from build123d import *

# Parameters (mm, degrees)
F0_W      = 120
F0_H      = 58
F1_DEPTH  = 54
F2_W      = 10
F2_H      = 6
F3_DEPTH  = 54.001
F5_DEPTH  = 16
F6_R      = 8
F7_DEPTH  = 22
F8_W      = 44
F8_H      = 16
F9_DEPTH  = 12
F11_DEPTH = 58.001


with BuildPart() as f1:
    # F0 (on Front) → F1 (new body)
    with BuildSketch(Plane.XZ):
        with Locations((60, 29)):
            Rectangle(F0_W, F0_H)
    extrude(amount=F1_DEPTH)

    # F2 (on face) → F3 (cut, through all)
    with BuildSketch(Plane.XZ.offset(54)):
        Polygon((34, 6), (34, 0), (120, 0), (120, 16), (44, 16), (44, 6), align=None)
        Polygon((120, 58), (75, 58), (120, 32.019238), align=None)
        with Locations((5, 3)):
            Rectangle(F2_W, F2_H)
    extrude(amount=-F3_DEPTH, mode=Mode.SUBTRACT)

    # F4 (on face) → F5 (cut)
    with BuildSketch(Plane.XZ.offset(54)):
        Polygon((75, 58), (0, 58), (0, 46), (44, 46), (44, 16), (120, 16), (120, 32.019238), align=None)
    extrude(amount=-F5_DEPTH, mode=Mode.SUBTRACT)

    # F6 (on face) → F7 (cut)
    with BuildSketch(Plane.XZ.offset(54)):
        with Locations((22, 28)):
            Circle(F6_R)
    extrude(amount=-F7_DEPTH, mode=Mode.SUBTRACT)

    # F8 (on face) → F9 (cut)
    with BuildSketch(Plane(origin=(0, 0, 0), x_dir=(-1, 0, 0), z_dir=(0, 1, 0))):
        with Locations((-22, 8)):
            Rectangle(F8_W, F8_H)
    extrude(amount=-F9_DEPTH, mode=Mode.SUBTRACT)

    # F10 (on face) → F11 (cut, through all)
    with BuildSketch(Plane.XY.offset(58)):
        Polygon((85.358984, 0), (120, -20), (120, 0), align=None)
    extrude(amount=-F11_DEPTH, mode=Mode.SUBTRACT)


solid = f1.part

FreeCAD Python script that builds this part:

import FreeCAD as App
import Part
import Sketcher
from FreeCAD import Vector
Q = App.Units.Quantity


def add_polygon(sketch, points):
    """Adds a closed chain of lines whose ends are joined by coincident constraints."""
    first, n = sketch.GeometryCount, len(points)
    for a, b in zip(points, points[1:] + points[:1]):
        sketch.addGeometry(Part.LineSegment(App.Vector(*a, 0), App.Vector(*b, 0)), False)
    for i in range(n):
        sketch.addConstraint(Sketcher.Constraint("Coincident", first + i, 2, first + (i + 1) % n, 1))

doc = App.newDocument("Part")
body = doc.addObject("PartDesign::Body", "Body")

# Sketch on XZ plane
sketch1 = doc.addObject("Sketcher::SketchObject", "Sketch")
body.addObject(sketch1)
sketch1.AttachmentSupport = (doc.XZ_Plane, [""])
sketch1.MapMode = "FlatFace"
add_polygon(sketch1, [(0, 58), (0, 0), (120, 0), (120, 58)])  # lines 0-3
sketch1.addConstraint([
    Sketcher.Constraint("Vertical", 0),
    Sketcher.Constraint("Horizontal", 1),
    Sketcher.Constraint("Vertical", 2),
    Sketcher.Constraint("Horizontal", 3),
    Sketcher.Constraint("Coincident", 0, 2, -1, 1),
    Sketcher.Constraint("DistanceX", 1, 1, 1, 2, 120.0),
    Sketcher.Constraint("DistanceY", 0, 2, 0, 1, 58.0),
])
pad1 = doc.addObject("PartDesign::Pad", "Pad")
body.addObject(pad1)
pad1.Profile = sketch1
pad1.Length = 54

# Sketch on XZ plane
sketch2 = doc.addObject("Sketcher::SketchObject", "Sketch001")
body.addObject(sketch2)
sketch2.AttachmentSupport = (doc.XZ_Plane, [""])
sketch2.MapMode = "FlatFace"
sketch2.AttachmentOffset = App.Placement(Vector(0, 0, 54), App.Rotation())
add_polygon(sketch2, [(34, 6), (34, 0), (120, 0), (120, 16), (44, 16), (44, 6)])  # lines 0-5
add_polygon(sketch2, [(120, 58), (75, 58), (120, 32)])  # lines 6-8
add_polygon(sketch2, [(0, 6), (0, 0), (10, 0), (10, 6)])  # lines 9-12
sketch2.addConstraint([
    Sketcher.Constraint("Vertical", 0),
    Sketcher.Constraint("Horizontal", 1),
    Sketcher.Constraint("Vertical", 2),
    Sketcher.Constraint("Horizontal", 3),
    Sketcher.Constraint("Vertical", 4),
    Sketcher.Constraint("Horizontal", 5),
    Sketcher.Constraint("Horizontal", 6),
    Sketcher.Constraint("Vertical", 8),
    Sketcher.Constraint("Vertical", 9),
    Sketcher.Constraint("Horizontal", 10),
    Sketcher.Constraint("Vertical", 11),
    Sketcher.Constraint("Horizontal", 12),
    Sketcher.Constraint("Coincident", 9, 2, -1, 1),
    Sketcher.Constraint("PointOnObject", 0, 2, -1),
    Sketcher.Constraint("Horizontal", 5, 2, 11, 2),
    Sketcher.Constraint("Vertical", 2, 2, 7, 2),
    Sketcher.Constraint("Equal", 5, 10),
    Sketcher.Constraint("Equal", 12, 4),
    Sketcher.Constraint("DistanceX", 1, 1, 1, 2, 86.0),
    Sketcher.Constraint("DistanceX", 3, 2, 3, 1, 76.0),
    Sketcher.Constraint("DistanceX", 6, 2, 6, 1, 45.0),
    Sketcher.Constraint("DistanceY", 0, 2, 0, 1, 6.0),
    Sketcher.Constraint("Angle", 7, Q("-30 deg")),
    Sketcher.Constraint("DistanceX", -1, 1, 0, 2, 34.0),
    Sketcher.Constraint("DistanceY", -1, 1, 6, 2, 58.0),
])
pocket1 = doc.addObject("PartDesign::Pocket", "Pocket")
body.addObject(pocket1)
pocket1.Profile = sketch2
pocket1.Type = "ThroughAll"

# Sketch on XZ plane
sketch3 = doc.addObject("Sketcher::SketchObject", "Sketch002")
body.addObject(sketch3)
sketch3.AttachmentSupport = (doc.XZ_Plane, [""])
sketch3.MapMode = "FlatFace"
sketch3.AttachmentOffset = App.Placement(Vector(0, 0, 54), App.Rotation())
add_polygon(sketch3, [(75, 58), (0, 58), (0, 46), (44, 46), (44, 16), (120, 16), (120, 32)])  # lines 0-6
sketch3.addConstraint([
    Sketcher.Constraint("Horizontal", 0),
    Sketcher.Constraint("Vertical", 1),
    Sketcher.Constraint("Horizontal", 2),
    Sketcher.Constraint("Vertical", 3),
    Sketcher.Constraint("Horizontal", 4),
    Sketcher.Constraint("Vertical", 5),
    Sketcher.Constraint("PointOnObject", 0, 2, -2),
    Sketcher.Constraint("DistanceX", 0, 2, 0, 1, 75.0),
    Sketcher.Constraint("DistanceX", 2, 1, 2, 2, 44.0),
    Sketcher.Constraint("DistanceX", 4, 1, 4, 2, 76.0),
    Sketcher.Constraint("DistanceY", 1, 2, 1, 1, 12.0),
    Sketcher.Constraint("DistanceY", 3, 2, 3, 1, 30.0),
    Sketcher.Constraint("Angle", 6, Q("150 deg")),
    Sketcher.Constraint("DistanceY", -1, 1, 0, 2, 58.0),
])
pocket2 = doc.addObject("PartDesign::Pocket", "Pocket001")
body.addObject(pocket2)
pocket2.Profile = sketch3
pocket2.Length = 16

# Sketch on XZ plane
sketch4 = doc.addObject("Sketcher::SketchObject", "Sketch003")
body.addObject(sketch4)
sketch4.AttachmentSupport = (doc.XZ_Plane, [""])
sketch4.MapMode = "FlatFace"
sketch4.AttachmentOffset = App.Placement(Vector(0, 0, 54), App.Rotation())
sketch4.addGeometry(Part.Circle(Vector(22, 28, 0), Vector(0, 0, 1), 8), False)
sketch4.addConstraint([
    Sketcher.Constraint("Diameter", 0, 16.0),
    Sketcher.Constraint("DistanceX", -1, 1, 0, 3, 22.0),
    Sketcher.Constraint("DistanceY", -1, 1, 0, 3, 28.0),
])
pocket3 = doc.addObject("PartDesign::Pocket", "Pocket002")
body.addObject(pocket3)
pocket3.Profile = sketch4
pocket3.Length = 22

# Sketch on XZ plane
sketch5 = doc.addObject("Sketcher::SketchObject", "Sketch004")
body.addObject(sketch5)
sketch5.AttachmentSupport = (doc.XZ_Plane, [""])
sketch5.MapMode = "FlatFace"
add_polygon(sketch5, [(44, 16), (44, 0), (0, 0), (0, 16)])  # lines 0-3
sketch5.addConstraint([
    Sketcher.Constraint("Vertical", 0),
    Sketcher.Constraint("Horizontal", 1),
    Sketcher.Constraint("Vertical", 2),
    Sketcher.Constraint("Horizontal", 3),
    Sketcher.Constraint("Coincident", 1, 2, -1, 1),
    Sketcher.Constraint("DistanceX", 1, 2, 1, 1, 44.0),
    Sketcher.Constraint("DistanceY", 0, 2, 0, 1, 16.0),
])
pocket4 = doc.addObject("PartDesign::Pocket", "Pocket003")
body.addObject(pocket4)
pocket4.Profile = sketch5
pocket4.Length = 12
pocket4.Reversed = True

# Sketch on XY plane
sketch6 = doc.addObject("Sketcher::SketchObject", "Sketch005")
body.addObject(sketch6)
sketch6.AttachmentSupport = (doc.XY_Plane, [""])
sketch6.MapMode = "FlatFace"
sketch6.AttachmentOffset = App.Placement(Vector(0, 0, 58), App.Rotation())
add_polygon(sketch6, [(85, 0), (120, -20), (120, 0)])  # lines 0-2
sketch6.addConstraint([
    Sketcher.Constraint("Vertical", 1),
    Sketcher.Constraint("Horizontal", 2),
    Sketcher.Constraint("PointOnObject", 1, 2, -1),
    Sketcher.Constraint("DistanceY", 1, 1, 1, 2, 20.0),
    Sketcher.Constraint("Angle", 0, Q("-30 deg")),
    Sketcher.Constraint("DistanceX", -1, 1, 0, 2, 120.0),
])
pocket5 = doc.addObject("PartDesign::Pocket", "Pocket004")
body.addObject(pocket5)
pocket5.Profile = sketch6
pocket5.Type = "ThroughAll"

doc.recompute()
